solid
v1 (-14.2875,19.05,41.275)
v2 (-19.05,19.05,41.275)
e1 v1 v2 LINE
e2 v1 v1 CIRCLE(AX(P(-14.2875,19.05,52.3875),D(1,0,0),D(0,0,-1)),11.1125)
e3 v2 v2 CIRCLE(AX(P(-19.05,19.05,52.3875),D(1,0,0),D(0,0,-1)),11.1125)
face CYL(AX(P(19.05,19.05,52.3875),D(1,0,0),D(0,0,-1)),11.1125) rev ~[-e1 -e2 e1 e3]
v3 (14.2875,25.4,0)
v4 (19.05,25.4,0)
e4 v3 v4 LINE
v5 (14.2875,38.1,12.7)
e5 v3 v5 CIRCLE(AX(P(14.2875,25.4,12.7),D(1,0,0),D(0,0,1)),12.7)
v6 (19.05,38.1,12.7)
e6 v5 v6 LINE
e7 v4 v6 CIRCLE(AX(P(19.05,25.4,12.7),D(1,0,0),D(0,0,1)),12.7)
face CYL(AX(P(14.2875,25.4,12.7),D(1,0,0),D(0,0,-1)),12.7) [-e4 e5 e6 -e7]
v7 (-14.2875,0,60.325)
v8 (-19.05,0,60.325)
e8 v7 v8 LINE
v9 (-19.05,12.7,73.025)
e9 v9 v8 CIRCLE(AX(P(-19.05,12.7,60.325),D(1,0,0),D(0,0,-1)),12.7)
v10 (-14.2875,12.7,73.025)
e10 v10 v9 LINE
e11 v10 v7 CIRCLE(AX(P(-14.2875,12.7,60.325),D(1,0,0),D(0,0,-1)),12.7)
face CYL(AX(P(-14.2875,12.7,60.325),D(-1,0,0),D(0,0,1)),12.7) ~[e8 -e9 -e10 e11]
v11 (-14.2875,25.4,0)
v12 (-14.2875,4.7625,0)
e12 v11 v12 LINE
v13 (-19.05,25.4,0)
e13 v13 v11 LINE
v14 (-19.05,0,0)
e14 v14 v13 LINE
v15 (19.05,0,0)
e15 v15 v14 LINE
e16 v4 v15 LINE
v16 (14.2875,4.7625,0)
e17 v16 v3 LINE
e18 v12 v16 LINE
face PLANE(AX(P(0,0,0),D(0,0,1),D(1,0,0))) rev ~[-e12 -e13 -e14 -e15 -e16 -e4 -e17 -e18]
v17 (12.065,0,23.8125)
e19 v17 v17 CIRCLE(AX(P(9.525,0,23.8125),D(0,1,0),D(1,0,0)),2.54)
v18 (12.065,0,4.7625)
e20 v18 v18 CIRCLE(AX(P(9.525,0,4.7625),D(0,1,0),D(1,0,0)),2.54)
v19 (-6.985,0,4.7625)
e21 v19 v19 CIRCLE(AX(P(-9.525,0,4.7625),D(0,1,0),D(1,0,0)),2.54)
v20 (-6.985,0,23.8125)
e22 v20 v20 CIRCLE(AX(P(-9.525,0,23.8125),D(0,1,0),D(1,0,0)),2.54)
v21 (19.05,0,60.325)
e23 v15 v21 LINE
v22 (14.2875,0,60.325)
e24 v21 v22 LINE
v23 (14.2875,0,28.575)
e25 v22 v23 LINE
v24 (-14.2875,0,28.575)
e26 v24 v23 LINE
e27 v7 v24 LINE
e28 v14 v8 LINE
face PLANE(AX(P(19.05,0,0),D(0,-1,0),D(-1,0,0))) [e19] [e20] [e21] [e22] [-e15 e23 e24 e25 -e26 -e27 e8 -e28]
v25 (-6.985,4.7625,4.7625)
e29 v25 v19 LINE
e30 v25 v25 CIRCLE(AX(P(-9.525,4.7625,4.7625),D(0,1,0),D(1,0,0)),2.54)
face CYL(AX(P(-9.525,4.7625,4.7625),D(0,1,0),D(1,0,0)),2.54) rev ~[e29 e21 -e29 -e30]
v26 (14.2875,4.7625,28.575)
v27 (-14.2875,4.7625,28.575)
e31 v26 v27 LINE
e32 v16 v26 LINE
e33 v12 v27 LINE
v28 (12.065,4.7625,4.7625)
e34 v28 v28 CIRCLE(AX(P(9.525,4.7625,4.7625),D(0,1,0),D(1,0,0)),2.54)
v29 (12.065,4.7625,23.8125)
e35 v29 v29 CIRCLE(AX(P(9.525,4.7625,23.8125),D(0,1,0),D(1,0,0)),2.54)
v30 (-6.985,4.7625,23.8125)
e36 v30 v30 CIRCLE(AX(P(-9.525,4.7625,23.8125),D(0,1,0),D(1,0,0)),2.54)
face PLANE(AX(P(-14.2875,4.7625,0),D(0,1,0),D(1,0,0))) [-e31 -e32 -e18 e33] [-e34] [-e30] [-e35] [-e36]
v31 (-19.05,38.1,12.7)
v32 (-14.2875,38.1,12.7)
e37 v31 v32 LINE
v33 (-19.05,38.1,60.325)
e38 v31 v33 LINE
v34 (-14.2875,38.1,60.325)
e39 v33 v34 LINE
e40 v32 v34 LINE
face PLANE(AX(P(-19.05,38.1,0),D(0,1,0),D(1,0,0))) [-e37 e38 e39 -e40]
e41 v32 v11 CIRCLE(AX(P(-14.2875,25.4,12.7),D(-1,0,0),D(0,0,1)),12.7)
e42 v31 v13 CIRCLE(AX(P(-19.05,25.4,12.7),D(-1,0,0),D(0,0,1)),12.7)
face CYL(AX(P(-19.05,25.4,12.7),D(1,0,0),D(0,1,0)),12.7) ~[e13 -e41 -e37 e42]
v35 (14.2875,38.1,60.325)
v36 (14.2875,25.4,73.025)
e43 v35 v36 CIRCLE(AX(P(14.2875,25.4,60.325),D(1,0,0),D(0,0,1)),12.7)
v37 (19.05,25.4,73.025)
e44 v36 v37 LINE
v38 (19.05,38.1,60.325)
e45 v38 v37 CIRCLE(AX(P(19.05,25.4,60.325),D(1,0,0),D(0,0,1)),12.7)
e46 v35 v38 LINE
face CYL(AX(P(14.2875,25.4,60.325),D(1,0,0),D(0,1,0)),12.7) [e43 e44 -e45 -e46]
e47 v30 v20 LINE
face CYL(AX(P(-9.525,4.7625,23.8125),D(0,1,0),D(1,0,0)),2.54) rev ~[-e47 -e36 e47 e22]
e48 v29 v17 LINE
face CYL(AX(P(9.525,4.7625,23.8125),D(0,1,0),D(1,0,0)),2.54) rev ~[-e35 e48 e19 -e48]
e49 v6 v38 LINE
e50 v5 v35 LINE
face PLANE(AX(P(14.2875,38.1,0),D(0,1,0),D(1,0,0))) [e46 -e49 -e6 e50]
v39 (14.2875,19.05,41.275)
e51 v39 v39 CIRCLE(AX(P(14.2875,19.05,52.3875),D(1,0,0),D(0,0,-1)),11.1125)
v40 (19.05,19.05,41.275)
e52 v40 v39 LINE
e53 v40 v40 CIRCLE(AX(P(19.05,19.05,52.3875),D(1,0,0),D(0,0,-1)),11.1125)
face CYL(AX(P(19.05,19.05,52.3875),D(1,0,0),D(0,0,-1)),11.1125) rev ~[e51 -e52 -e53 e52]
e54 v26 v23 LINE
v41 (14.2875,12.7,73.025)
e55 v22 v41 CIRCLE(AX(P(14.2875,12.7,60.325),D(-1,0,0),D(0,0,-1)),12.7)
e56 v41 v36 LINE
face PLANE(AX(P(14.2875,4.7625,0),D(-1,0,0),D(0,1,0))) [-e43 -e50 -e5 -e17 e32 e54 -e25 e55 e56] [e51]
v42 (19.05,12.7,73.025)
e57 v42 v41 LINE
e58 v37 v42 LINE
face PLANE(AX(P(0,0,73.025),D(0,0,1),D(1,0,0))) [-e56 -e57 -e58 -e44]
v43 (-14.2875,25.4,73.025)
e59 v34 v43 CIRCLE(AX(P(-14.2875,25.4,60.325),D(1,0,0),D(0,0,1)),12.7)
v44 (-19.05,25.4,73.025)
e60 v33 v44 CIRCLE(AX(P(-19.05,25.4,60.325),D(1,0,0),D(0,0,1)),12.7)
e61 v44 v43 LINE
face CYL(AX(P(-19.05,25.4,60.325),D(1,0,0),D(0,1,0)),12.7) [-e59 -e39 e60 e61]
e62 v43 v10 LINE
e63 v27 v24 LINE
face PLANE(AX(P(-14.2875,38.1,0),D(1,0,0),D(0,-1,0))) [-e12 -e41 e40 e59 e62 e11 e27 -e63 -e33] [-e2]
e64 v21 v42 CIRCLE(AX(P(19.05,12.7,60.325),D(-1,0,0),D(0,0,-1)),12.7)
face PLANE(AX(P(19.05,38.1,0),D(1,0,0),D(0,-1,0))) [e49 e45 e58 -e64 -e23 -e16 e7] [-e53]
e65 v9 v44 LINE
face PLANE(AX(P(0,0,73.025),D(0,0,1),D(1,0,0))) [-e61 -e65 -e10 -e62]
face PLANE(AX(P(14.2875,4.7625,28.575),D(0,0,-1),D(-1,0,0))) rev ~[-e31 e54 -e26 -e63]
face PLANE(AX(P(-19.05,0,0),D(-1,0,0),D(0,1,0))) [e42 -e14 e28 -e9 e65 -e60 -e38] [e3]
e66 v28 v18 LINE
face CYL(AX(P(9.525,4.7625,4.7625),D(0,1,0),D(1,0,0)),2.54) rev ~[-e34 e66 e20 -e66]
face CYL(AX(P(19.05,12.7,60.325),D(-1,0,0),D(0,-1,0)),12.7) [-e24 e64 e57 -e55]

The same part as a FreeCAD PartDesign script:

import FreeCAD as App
import Part
import Sketcher

V = App.Vector
Q = App.Units.Quantity


def edges_at(feature, points):
    """Names of the edges that pass closest to the given points."""
    edges = feature.Shape.Edges
    near = lambda p: min(range(len(edges)), key=lambda i: edges[i].distToShape(Part.Vertex(*p))[0])
    return sorted({f"Edge{near(p) + 1}" for p in points})


def add_polygon(sketch, points):
    """Adds a closed chain of lines whose ends are joined by coincident constraints."""
    first, n = sketch.GeometryCount, len(points)
    for a, b in zip(points, points[1:] + points[:1]):
        sketch.addGeometry(Part.LineSegment(App.Vector(*a, 0), App.Vector(*b, 0)), False)
    for i in range(n):
        sketch.addConstraint(Sketcher.Constraint("Coincident", first + i, 2, first + (i + 1) % n, 1))

doc = App.newDocument("Part")
body = doc.addObject("PartDesign::Body", "Body")

sketch1 = body.newObject("Sketcher::SketchObject", "Sketch")
sketch1.AttachmentSupport = (doc.getObject("XY_Plane"), [""])
sketch1.MapMode = "FlatFace"
add_polygon(sketch1, [(-14.3, 38.1), (-19.1, 38.1), (-19.1, 0), (19.1, 0), (19.1, 38.1), (14.3, 38.1), (14.3, 4.8), (-14.3, 4.8)])
sketch1.addConstraint(Sketcher.Constraint("Horizontal", 0))
sketch1.addConstraint(Sketcher.Constraint("Vertical", 1))
sketch1.addConstraint(Sketcher.Constraint("Horizontal", 2))
sketch1.addConstraint(Sketcher.Constraint("Vertical", 3))
sketch1.addConstraint(Sketcher.Constraint("Horizontal", 4))
sketch1.addConstraint(Sketcher.Constraint("Vertical", 5))
sketch1.addConstraint(Sketcher.Constraint("Horizontal", 6))
sketch1.addConstraint(Sketcher.Constraint("Vertical", 7))
sketch1.addConstraint(Sketcher.Constraint("Symmetric", 1, 2, 2, 2, -1, 1))
sketch1.addConstraint(Sketcher.Constraint("Symmetric", 4, 2, 7, 2, -2))
sketch1.addConstraint(Sketcher.Constraint("Equal", 2, 1))
sketch1.addConstraint(Sketcher.Constraint("DistanceX", 2, 1, 2, 2, Q("1.5 in")))
sketch1.addConstraint(Sketcher.Constraint("DistanceX", 0, 2, 0, 1, Q("0.1875 in")))
sketch1.addConstraint(Sketcher.Constraint("DistanceY", -1, 1, 5, 2, Q("0.1875 in")))
pad1 = body.newObject("PartDesign::Pad", "Pad")
pad1.Profile = sketch1
pad1.Length = Q("2.875 in")

sketch2 = body.newObject("Sketcher::SketchObject", "Sketch001")
sketch2.AttachmentSupport = (doc.getObject("XZ_Plane"), [""])
sketch2.MapMode = "FlatFace"
sketch2.AttachmentOffset = App.Placement(V(0, 0, -0.1875 * 25.4), App.Rotation())
sketch2.addGeometry(Part.Circle(V(-9.5, 4.8, 0), V(0, 0, 1), 2.5), False)
sketch2.addGeometry(Part.Circle(V(-9.5, 23.8, 0), V(0, 0, 1), 2.5), False)
sketch2.addGeometry(Part.Circle(V(9.5, 4.8, 0), V(0, 0, 1), 2.5), False)
sketch2.addGeometry(Part.Circle(V(9.5, 23.8, 0), V(0, 0, 1), 2.5), False)
add_polygon(sketch2, [(14.3, 28.6), (-14.3, 28.6), (-14.3, 73), (14.3, 73)])
sketch2.addConstraint(Sketcher.Constraint("Horizontal", 4))
sketch2.addConstraint(Sketcher.Constraint("Vertical", 5))
sketch2.addConstraint(Sketcher.Constraint("Horizontal", 6))
sketch2.addConstraint(Sketcher.Constraint("Vertical", 7))
sketch2.addConstraint(Sketcher.Constraint("Equal", 0, 1))
sketch2.addConstraint(Sketcher.Constraint("Equal", 1, 2))
sketch2.addConstraint(Sketcher.Constraint("Equal", 2, 3))
sketch2.addConstraint(Sketcher.Constraint("Symmetric", 0, 3, 2, 3, -2))
sketch2.addConstraint(Sketcher.Constraint("Symmetric", 1, 3, 3, 3, -2))
sketch2.addConstraint(Sketcher.Constraint("Vertical", 0, 3, 1, 3))
sketch2.addConstraint(Sketcher.Constraint("Diameter", 0, Q("0.2 in")))
sketch2.addConstraint(Sketcher.Constraint("DistanceY", 0, 3, 1, 3, Q("0.75 in")))
sketch2.addConstraint(Sketcher.Constraint("DistanceX", 0, 3, 2, 3, Q("0.75 in")))
sketch2.addConstraint(Sketcher.Constraint("DistanceY", -1, 1, 0, 3, Q("0.1875 in")))
sketch2.addConstraint(Sketcher.Constraint("DistanceX", 4, 2, -1, 1, Q("0.5625 in")))
sketch2.addConstraint(Sketcher.Constraint("DistanceX", -1, 1, 6, 2, Q("0.5625 in")))
sketch2.addConstraint(Sketcher.Constraint("DistanceY", 1, 3, 4, 2, Q("0.1875 in")))
sketch2.addConstraint(Sketcher.Constraint("DistanceY", 5, 1, 5, 2, Q("1.75 in")))
pocket1 = body.newObject("PartDesign::Pocket", "Pocket")
pocket1.Profile = sketch2
pocket1.Type = "ThroughAll"
pocket1.Reversed = True

sketch3 = body.newObject("Sketcher::SketchObject", "Sketch002")
sketch3.AttachmentSupport = (doc.getObject("YZ_Plane"), [""])
sketch3.MapMode = "FlatFace"
sketch3.AttachmentOffset = App.Placement(V(0, 0, 0.75 * 25.4), App.Rotation())
sketch3.addGeometry(Part.Circle(V(19, 52, 0), V(0, 0, 1), 11), False)
sketch3.addConstraint(Sketcher.Constraint("Diameter", 0, Q("0.875 in")))
sketch3.addConstraint(Sketcher.Constraint("DistanceX", -1, 1, 0, 3, Q("0.75 in")))
sketch3.addConstraint(Sketcher.Constraint("DistanceY", -1, 1, 0, 3, Q("2.0625 in")))
pocket2 = body.newObject("PartDesign::Pocket", "Pocket001")
pocket2.Profile = sketch3
pocket2.Type = "ThroughAll"
doc.recompute()

fillet = body.newObject("PartDesign::Fillet", "Fillet")
fillet.Base = (pocket2, edges_at(pocket2, [
    (16.669, 38.1, 73.025),
    (-16.669, 38.1, 73.025),
    (16.669, 38.1, 0),
    (-16.669, 38.1, 0),
    (-16.669, 0, 73.025),
    (16.669, 0, 73.025),
]))
fillet.Radius = Q("0.5 in")

doc.recompute()
